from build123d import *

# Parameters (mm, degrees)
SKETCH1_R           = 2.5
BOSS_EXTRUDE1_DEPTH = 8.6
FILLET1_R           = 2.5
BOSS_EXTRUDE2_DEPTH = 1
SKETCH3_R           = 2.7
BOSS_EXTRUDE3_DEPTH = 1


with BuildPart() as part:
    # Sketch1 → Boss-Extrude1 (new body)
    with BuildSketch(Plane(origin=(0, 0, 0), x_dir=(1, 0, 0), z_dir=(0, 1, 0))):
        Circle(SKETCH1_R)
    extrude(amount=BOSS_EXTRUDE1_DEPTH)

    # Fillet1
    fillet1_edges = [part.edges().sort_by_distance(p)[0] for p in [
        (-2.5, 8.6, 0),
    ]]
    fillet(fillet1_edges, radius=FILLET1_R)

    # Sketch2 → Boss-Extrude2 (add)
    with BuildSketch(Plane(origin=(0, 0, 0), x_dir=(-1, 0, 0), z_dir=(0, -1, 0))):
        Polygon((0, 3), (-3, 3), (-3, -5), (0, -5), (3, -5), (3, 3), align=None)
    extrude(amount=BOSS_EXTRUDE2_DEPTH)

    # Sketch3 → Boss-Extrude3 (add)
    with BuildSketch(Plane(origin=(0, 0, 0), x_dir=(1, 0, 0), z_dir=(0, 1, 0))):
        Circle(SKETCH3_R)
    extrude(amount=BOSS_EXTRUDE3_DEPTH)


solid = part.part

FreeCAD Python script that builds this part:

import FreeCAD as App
import Part
import Sketcher
Q = App.Units.Quantity


def edges_at(feature, points):
    """Names of the edges that pass closest to the given points."""
    edges = feature.Shape.Edges
    near = lambda p: min(range(len(edges)), key=lambda i: edges[i].distToShape(Part.Vertex(*p))[0])
    return sorted({f"Edge{near(p) + 1}" for p in points})

doc = App.newDocument("Part")
body = doc.addObject("PartDesign::Body", "Body")

sketch1 = body.newObject("Sketcher::SketchObject", "Sketch")
sketch1.AttachmentSupport = (doc.getObject("XZ_Plane"), [""])
sketch1.MapMode = "FlatFace"
sketch1.addGeometry(Part.Circle(App.Vector(0, 0, 0), App.Vector(0, 0, 1), 2.5), False)
sketch1.addConstraint(Sketcher.Constraint("Coincident", 0, 3, -1, 1))
sketch1.addConstraint(Sketcher.Constraint("Diameter", 0, Q("5 mm")))
pad1 = body.newObject("PartDesign::Pad", "Pad")
pad1.Profile = sketch1
pad1.Length = 8.6
pad1.Reversed = True
doc.recompute()

fillet = body.newObject("PartDesign::Fillet", "Fillet")
fillet.Base = (pad1, edges_at(pad1, [(-2.5, 8.6, 0)]))
fillet.Radius = 2.5

sketch2 = body.newObject("Sketcher::SketchObject", "Sketch001")
sketch2.AttachmentSupport = (doc.getObject("XZ_Plane"), [""])
sketch2.MapMode = "FlatFace"
sketch2.addGeometry(Part.LineSegment(App.Vector(3, -3, 0), App.Vector(3, 5, 0)), False)
sketch2.addGeometry(Part.LineSegment(App.Vector(3, 5, 0), App.Vector(-3, 5, 0)), False)
sketch2.addGeometry(Part.LineSegment(App.Vector(-3, 5, 0), App.Vector(-3, -3, 0)), False)
sketch2.addGeometry(Part.LineSegment(App.Vector(-3, -3, 0), App.Vector(3, -3, 0)), False)
sketch2.addConstraint(Sketcher.Constraint("Coincident", 0, 2, 1, 1))
sketch2.addConstraint(Sketcher.Constraint("Coincident", 1, 2, 2, 1))
sketch2.addConstraint(Sketcher.Constraint("Coincident", 2, 2, 3, 1))
sketch2.addConstraint(Sketcher.Constraint("Coincident", 3, 2, 0, 1))
sketch2.addConstraint(Sketcher.Constraint("Vertical", 0))
sketch2.addConstraint(Sketcher.Constraint("Horizontal", 1))
sketch2.addConstraint(Sketcher.Constraint("Vertical", 2))
sketch2.addConstraint(Sketcher.Constraint("Horizontal", 3))
sketch2.addConstraint(Sketcher.Constraint("DistanceX", 1, 2, 1, 1, Q("6 mm")))
sketch2.addConstraint(Sketcher.Constraint("DistanceY", 0, 1, 0, 2, Q("8 mm")))
sketch2.addConstraint(Sketcher.Constraint("DistanceX", -1, 1, 0, 2, Q("3 mm")))
sketch2.addConstraint(Sketcher.Constraint("DistanceY", -1, 1, 0, 2, Q("5 mm")))
pad2 = body.newObject("PartDesign::Pad", "Pad001")
pad2.Profile = sketch2
pad2.Length = 1

sketch3 = body.newObject("Sketcher::SketchObject", "Sketch002")
sketch3.AttachmentSupport = (doc.getObject("XZ_Plane"), [""])
sketch3.MapMode = "FlatFace"
sketch3.addGeometry(Part.Circle(App.Vector(0, 0, 0), App.Vector(0, 0, 1), 2.7), False)
sketch3.addConstraint(Sketcher.Constraint("Coincident", 0, 3, -1, 1))
sketch3.addConstraint(Sketcher.Constraint("Diameter", 0, Q("5.4 mm")))
pad3 = body.newObject("PartDesign::Pad", "Pad002")
pad3.Profile = sketch3
pad3.Length = 1
pad3.Reversed = True

doc.recompute()
